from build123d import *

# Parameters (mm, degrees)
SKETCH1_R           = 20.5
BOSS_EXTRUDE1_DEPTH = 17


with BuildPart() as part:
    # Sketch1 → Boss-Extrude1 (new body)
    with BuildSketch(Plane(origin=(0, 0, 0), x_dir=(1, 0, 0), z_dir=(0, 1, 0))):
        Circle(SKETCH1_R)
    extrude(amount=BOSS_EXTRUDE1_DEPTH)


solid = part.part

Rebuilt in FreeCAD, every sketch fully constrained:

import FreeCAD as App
import Part
import Sketcher
from FreeCAD import Vector

doc = App.newDocument("Part")
body = doc.addObject("PartDesign::Body", "Body")

sketch1 = body.newObject("Sketcher::SketchObject", "Sketch")
sketch1.AttachmentSupport = (doc.getObject("XZ_Plane"), [""])
sketch1.MapMode = "FlatFace"
sketch1.addGeometry(Part.Circle(Vector(0, 0, 0), Vector(0, 0, 1), 20), False)
sketch1.addConstraint([
    Sketcher.Constraint("Coincident", 0, 3, -1, 1),
    Sketcher.Constraint("Diameter", 0, 41.0),
])
pad1 = body.newObject("PartDesign::Pad", "Pad")
pad1.Profile = sketch1
pad1.Length = 17
pad1.Reversed = True

doc.recompute()
